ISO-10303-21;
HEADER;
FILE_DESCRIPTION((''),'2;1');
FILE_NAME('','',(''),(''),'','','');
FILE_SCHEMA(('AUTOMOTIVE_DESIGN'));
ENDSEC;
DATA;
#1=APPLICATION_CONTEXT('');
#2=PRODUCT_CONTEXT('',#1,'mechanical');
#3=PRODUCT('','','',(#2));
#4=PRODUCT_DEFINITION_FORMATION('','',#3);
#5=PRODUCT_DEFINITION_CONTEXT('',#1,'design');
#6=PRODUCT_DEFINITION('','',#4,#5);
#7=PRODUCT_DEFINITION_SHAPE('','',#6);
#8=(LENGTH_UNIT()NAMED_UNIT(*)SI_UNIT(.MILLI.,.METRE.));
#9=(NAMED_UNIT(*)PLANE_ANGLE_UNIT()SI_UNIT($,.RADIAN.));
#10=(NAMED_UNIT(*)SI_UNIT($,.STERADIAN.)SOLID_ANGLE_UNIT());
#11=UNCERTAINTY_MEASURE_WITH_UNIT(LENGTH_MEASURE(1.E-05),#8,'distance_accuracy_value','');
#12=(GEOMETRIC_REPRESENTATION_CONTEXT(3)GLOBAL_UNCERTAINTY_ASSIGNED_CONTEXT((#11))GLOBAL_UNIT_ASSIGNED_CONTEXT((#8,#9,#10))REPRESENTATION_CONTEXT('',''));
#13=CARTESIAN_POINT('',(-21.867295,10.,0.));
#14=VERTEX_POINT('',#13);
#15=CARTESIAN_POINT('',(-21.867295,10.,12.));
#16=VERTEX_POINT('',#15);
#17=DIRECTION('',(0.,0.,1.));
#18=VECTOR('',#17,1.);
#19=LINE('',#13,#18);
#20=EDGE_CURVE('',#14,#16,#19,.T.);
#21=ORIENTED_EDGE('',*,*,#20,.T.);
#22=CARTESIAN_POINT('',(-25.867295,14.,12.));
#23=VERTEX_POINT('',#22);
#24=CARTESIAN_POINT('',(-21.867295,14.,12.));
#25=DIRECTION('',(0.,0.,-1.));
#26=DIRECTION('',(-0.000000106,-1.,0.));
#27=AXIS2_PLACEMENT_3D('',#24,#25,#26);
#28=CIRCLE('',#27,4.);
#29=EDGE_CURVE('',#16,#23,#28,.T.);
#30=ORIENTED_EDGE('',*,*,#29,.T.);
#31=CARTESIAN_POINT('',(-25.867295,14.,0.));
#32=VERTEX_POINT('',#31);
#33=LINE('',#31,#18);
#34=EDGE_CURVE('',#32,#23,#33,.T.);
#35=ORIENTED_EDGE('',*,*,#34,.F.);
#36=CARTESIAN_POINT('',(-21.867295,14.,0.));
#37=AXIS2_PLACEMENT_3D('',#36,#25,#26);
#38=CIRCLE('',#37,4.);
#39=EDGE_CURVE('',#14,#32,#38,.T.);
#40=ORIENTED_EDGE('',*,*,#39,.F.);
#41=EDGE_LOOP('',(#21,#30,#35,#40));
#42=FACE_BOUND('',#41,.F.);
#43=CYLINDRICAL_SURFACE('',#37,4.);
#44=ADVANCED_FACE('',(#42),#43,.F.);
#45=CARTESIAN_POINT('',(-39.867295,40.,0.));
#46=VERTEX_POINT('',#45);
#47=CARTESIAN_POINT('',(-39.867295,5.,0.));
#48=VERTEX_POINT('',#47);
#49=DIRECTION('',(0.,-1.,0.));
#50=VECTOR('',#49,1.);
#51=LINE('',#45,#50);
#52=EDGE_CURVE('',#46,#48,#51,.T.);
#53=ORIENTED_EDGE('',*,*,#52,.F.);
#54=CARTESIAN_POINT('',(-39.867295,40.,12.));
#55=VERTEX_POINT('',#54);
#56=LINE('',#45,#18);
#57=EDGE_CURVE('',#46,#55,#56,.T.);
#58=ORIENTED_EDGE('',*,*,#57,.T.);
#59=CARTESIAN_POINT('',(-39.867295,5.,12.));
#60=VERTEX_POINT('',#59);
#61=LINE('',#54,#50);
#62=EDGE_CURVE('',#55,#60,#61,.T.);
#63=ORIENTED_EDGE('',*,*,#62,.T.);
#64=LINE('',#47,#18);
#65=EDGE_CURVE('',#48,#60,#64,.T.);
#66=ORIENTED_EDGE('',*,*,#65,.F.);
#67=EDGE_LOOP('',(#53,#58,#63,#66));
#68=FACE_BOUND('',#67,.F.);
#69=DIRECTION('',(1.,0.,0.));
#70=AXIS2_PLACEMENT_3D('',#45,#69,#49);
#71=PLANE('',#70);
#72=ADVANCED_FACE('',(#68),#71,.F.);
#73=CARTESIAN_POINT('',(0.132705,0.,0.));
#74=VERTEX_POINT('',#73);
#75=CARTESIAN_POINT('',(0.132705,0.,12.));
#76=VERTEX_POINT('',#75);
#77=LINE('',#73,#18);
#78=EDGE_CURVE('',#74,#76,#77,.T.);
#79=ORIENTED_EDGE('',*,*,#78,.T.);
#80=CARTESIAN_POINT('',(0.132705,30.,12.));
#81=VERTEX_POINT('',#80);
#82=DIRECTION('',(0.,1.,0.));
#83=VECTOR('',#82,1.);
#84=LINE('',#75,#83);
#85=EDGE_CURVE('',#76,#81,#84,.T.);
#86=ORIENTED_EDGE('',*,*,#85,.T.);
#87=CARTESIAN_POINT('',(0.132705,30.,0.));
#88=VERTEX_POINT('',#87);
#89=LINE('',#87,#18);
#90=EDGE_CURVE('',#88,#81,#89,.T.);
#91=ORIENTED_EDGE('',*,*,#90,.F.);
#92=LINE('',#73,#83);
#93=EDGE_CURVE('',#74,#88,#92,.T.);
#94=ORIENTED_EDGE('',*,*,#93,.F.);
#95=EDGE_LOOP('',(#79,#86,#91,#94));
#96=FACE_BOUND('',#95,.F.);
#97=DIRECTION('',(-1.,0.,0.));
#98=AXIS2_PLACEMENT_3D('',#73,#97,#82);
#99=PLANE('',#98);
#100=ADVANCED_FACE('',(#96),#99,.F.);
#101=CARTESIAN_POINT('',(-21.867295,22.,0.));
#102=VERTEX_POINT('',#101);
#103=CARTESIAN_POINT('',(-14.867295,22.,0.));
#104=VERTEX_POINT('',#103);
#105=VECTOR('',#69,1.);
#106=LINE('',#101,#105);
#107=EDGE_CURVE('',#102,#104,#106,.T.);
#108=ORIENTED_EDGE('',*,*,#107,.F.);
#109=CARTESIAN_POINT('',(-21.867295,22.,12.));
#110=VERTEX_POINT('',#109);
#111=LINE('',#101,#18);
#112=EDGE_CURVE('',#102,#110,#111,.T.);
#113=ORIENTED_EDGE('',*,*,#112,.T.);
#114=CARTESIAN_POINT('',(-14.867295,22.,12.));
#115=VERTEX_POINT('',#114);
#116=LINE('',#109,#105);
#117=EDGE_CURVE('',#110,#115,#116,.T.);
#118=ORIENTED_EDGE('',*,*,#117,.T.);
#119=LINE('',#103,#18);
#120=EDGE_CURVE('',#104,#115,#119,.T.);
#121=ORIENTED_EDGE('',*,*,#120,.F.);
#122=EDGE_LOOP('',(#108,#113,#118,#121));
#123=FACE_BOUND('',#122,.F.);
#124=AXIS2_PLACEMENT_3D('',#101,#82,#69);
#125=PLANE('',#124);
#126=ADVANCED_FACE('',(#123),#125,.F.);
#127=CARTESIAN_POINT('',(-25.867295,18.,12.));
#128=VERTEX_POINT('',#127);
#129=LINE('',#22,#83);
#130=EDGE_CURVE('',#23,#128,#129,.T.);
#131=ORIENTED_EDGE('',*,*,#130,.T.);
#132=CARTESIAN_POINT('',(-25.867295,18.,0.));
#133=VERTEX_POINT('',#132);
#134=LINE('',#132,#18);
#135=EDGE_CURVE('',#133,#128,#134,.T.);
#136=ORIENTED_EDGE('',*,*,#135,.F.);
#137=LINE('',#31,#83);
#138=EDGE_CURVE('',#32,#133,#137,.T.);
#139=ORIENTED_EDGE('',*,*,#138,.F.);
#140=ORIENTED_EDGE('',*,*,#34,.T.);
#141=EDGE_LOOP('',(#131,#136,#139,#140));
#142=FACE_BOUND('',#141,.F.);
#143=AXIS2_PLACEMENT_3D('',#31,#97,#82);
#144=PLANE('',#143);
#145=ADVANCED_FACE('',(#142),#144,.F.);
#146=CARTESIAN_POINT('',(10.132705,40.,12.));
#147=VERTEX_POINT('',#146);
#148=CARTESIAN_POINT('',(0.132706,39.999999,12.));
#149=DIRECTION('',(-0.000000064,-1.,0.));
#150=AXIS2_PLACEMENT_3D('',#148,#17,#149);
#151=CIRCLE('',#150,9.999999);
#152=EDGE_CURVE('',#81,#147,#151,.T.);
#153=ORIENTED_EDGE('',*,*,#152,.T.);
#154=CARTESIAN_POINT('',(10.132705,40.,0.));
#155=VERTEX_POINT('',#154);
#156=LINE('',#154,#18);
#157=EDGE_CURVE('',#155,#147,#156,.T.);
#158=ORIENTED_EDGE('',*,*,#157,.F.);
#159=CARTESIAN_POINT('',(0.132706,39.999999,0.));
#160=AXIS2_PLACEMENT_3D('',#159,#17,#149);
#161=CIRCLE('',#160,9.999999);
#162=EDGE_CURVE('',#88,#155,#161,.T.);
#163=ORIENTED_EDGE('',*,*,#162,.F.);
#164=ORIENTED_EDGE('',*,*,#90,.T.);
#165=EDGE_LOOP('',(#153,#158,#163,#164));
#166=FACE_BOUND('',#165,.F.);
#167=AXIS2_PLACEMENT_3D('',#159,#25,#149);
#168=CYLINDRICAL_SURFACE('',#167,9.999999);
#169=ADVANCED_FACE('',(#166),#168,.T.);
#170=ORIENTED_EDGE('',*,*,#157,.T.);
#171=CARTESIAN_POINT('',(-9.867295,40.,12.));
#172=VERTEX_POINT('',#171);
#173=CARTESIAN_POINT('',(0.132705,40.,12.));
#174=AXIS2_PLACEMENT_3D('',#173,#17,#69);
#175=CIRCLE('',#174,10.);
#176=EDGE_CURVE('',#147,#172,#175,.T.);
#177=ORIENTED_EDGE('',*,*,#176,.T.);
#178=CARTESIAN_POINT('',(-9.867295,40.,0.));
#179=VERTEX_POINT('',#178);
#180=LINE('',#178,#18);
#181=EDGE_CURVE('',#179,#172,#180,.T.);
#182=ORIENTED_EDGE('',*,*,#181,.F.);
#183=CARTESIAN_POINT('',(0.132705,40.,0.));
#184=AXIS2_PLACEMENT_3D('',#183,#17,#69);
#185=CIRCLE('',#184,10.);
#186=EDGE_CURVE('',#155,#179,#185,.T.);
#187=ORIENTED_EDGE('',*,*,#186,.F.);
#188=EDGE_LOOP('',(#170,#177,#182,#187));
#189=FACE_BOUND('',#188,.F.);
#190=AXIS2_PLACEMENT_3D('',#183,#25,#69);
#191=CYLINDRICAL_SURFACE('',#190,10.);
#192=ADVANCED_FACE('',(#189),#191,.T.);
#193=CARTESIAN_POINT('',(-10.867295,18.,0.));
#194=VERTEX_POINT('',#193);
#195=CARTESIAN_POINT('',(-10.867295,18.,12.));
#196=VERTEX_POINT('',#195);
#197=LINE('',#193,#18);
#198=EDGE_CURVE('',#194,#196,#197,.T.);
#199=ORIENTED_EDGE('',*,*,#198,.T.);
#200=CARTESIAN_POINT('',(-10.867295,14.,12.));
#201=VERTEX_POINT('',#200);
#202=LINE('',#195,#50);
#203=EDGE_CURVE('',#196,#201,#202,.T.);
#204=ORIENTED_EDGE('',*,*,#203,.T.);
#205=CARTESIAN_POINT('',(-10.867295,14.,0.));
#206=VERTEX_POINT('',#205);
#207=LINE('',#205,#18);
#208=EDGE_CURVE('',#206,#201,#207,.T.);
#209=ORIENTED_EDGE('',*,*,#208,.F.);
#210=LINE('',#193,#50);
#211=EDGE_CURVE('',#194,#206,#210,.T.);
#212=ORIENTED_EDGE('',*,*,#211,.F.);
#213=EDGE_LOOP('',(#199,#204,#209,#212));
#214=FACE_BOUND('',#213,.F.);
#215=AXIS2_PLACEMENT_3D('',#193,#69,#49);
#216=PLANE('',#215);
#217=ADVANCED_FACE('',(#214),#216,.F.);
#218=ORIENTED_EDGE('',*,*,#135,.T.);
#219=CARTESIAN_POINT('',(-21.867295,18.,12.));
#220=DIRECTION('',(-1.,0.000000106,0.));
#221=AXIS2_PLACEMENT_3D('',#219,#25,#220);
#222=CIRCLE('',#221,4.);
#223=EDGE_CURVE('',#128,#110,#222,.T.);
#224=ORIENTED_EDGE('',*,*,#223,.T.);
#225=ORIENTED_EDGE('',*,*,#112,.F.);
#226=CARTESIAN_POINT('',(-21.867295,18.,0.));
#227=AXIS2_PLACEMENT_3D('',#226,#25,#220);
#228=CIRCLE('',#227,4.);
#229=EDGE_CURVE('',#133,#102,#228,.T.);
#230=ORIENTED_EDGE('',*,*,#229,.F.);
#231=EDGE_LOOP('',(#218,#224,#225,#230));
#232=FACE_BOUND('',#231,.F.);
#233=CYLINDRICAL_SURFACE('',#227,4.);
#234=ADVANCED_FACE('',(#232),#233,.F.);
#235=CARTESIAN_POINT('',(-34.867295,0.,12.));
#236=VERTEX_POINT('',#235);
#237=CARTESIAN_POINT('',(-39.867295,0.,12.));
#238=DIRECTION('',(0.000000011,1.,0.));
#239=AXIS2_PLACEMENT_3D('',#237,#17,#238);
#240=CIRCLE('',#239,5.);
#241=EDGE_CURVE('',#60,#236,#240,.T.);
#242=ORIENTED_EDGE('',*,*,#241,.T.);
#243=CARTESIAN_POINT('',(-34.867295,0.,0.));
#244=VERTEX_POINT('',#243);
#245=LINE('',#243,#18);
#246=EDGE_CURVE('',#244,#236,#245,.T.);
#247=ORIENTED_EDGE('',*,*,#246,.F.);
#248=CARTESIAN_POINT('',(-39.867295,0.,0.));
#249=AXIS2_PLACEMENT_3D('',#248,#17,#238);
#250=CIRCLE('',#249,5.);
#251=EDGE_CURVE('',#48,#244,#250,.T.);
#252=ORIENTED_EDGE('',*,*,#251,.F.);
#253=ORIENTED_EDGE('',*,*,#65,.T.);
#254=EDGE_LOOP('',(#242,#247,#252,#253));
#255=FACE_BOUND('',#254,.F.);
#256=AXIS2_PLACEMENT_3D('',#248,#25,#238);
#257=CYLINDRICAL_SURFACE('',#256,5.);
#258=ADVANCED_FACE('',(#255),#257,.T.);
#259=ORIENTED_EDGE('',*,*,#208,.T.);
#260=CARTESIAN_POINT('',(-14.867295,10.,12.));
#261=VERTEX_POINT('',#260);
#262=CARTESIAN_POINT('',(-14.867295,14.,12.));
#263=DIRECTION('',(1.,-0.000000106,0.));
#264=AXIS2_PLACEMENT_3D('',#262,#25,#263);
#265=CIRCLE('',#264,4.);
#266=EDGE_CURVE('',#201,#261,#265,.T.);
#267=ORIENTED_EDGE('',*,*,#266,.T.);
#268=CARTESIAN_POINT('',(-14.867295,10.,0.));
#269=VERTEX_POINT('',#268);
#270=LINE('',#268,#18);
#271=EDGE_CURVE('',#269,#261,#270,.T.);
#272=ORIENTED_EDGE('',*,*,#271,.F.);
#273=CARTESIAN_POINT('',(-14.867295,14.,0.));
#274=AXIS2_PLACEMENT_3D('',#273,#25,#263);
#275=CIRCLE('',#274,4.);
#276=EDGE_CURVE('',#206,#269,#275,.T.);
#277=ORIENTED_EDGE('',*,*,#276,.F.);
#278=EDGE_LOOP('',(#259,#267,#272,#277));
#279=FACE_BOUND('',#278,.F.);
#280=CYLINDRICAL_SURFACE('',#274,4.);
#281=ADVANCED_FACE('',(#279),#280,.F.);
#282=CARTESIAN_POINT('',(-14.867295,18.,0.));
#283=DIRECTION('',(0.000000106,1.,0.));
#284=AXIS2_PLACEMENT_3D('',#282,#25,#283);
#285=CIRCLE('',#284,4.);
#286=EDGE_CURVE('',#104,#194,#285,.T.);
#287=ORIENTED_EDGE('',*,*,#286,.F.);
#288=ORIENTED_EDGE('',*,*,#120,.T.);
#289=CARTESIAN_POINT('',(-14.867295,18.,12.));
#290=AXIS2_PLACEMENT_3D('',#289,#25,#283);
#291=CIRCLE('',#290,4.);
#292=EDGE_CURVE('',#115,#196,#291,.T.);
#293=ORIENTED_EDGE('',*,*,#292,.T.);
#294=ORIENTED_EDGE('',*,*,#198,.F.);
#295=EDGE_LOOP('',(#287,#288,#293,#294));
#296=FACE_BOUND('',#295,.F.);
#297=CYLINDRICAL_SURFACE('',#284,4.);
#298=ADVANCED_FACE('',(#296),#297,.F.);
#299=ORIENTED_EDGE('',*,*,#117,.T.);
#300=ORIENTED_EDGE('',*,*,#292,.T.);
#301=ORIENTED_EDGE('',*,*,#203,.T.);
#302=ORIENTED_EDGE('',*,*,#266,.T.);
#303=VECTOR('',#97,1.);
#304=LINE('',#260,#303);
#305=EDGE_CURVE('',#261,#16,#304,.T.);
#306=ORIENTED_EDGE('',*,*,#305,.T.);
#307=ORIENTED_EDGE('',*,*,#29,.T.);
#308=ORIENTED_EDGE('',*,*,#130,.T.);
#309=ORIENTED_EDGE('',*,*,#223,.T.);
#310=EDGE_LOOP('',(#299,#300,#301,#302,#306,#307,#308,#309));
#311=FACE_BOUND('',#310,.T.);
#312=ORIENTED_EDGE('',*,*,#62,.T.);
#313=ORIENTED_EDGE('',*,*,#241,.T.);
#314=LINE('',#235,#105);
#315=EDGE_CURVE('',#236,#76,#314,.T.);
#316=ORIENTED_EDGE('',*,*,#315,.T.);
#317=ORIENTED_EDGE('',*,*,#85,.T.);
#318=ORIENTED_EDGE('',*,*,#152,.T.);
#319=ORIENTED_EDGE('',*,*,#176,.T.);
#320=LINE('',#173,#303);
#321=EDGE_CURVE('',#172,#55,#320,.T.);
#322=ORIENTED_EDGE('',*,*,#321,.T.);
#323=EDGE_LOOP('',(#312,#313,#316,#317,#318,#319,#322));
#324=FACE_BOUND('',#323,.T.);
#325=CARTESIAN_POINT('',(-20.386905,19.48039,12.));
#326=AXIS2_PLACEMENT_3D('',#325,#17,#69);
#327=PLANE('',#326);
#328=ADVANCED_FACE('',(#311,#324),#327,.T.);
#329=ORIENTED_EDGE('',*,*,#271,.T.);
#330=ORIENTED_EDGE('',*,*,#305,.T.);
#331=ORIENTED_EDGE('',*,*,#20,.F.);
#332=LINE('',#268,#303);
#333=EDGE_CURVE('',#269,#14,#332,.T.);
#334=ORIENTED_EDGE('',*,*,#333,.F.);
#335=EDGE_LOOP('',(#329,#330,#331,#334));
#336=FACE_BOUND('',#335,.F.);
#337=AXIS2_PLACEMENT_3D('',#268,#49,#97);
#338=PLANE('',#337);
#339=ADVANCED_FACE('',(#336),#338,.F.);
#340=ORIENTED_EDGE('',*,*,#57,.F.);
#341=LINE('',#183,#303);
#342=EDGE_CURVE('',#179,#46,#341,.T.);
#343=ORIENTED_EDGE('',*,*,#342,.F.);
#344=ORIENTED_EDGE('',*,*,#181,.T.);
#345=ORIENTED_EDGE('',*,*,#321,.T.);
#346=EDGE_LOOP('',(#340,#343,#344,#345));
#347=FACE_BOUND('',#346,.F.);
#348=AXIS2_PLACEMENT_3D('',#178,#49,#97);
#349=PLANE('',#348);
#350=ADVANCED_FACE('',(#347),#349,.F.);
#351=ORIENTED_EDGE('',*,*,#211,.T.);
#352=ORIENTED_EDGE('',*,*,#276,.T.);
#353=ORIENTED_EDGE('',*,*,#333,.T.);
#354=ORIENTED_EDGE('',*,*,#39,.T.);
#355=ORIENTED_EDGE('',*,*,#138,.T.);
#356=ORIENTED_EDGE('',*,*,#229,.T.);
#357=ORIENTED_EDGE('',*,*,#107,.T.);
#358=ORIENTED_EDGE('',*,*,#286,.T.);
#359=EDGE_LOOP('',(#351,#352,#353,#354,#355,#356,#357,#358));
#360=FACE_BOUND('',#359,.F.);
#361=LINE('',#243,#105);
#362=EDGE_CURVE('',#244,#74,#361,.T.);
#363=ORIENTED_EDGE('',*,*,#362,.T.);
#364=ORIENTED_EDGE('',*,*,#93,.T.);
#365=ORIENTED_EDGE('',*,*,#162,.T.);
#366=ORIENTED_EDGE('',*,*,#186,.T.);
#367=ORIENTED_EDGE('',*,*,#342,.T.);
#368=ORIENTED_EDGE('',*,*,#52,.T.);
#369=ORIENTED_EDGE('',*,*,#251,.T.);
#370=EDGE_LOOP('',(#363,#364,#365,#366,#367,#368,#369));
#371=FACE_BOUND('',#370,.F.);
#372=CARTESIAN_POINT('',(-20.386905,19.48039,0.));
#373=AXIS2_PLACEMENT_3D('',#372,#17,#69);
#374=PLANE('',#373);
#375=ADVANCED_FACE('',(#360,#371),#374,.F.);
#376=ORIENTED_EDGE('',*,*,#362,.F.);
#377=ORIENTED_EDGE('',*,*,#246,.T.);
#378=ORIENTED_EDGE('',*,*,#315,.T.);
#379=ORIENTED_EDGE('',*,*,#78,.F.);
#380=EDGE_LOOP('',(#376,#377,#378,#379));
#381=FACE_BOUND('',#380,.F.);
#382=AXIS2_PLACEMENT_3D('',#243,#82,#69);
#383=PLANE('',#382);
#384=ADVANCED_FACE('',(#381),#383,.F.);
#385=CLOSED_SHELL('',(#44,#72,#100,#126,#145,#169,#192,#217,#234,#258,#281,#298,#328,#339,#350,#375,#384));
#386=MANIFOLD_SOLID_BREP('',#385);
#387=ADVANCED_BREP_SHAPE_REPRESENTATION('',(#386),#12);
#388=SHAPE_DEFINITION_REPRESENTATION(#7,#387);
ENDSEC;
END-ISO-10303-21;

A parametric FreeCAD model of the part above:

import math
import FreeCAD as App
import Part
import Sketcher
from FreeCAD import Vector

doc = App.newDocument("Part")
body = doc.addObject("PartDesign::Body", "Body")

# Sketch on XY plane
sketch1 = body.newObject("Sketcher::SketchObject", "Sketch")
sketch1.AttachmentSupport = (doc.getObject("XY_Plane"), [""])
sketch1.MapMode = "FlatFace"
sketch1.addGeometry([
    Part.LineSegment(Vector(-39.9, 40, 0), Vector(-39.9, 5, 0)),  # 0
    Part.ArcOfCircle(Part.Circle(Vector(-39.9, 0, 0), Vector(0, 0, 1), 5), math.radians(90), math.radians(360)),  # 1
    Part.LineSegment(Vector(-34.9, 0, 0), Vector(0.1, 0, 0)),  # 2
    Part.LineSegment(Vector(0.1, 0, 0), Vector(0.1, 30, 0)),  # 3
    Part.ArcOfCircle(Part.Circle(Vector(0.1, 40, 0), Vector(0, 0, 1), 10), math.radians(-90), math.radians(0)),  # 4
    Part.ArcOfCircle(Part.Circle(Vector(0.1, 40, 0), Vector(0, 0, 1), 10), math.radians(0), math.radians(180)),  # 5
    Part.LineSegment(Vector(-9.9, 40, 0), Vector(-39.9, 40, 0)),  # 6
    Part.LineSegment(Vector(-25.9, 14, 0), Vector(-25.9, 18, 0)),  # 7
    Part.ArcOfCircle(Part.Circle(Vector(-21.9, 18, 0), Vector(0, 0, 1), 4), math.radians(90), math.radians(180)),  # 8
    Part.LineSegment(Vector(-21.9, 22, 0), Vector(-14.9, 22, 0)),  # 9
    Part.ArcOfCircle(Part.Circle(Vector(-14.9, 18, 0), Vector(0, 0, 1), 4), math.radians(0), math.radians(90)),  # 10
    Part.LineSegment(Vector(-10.9, 18, 0), Vector(-10.9, 14, 0)),  # 11
    Part.ArcOfCircle(Part.Circle(Vector(-14.9, 14, 0), Vector(0, 0, 1), 4), math.radians(-90), math.radians(0)),  # 12
    Part.LineSegment(Vector(-14.9, 10, 0), Vector(-21.9, 10, 0)),  # 13
    Part.ArcOfCircle(Part.Circle(Vector(-21.9, 14, 0), Vector(0, 0, 1), 4), math.radians(-180), math.radians(-90)),  # 14
], False)
sketch1.addConstraint([
    Sketcher.Constraint("Coincident", 0, 2, 1, 1),
    Sketcher.Constraint("Coincident", 1, 2, 2, 1),
    Sketcher.Constraint("Coincident", 2, 2, 3, 1),
    Sketcher.Constraint("Coincident", 3, 2, 4, 1),
    Sketcher.Constraint("Tangent", 4, 2, 5, 1),
    Sketcher.Constraint("Coincident", 5, 2, 6, 1),
    Sketcher.Constraint("Coincident", 6, 2, 0, 1),
    Sketcher.Constraint("Tangent", 7, 2, 8, 2),
    Sketcher.Constraint("Tangent", 8, 1, 9, 1),
    Sketcher.Constraint("Tangent", 9, 2, 10, 2),
    Sketcher.Constraint("Tangent", 10, 1, 11, 1),
    Sketcher.Constraint("Tangent", 11, 2, 12, 2),
    Sketcher.Constraint("Tangent", 12, 1, 13, 1),
    Sketcher.Constraint("Tangent", 13, 2, 14, 2),
    Sketcher.Constraint("Tangent", 14, 1, 7, 1),
    Sketcher.Constraint("Vertical", 0),
    Sketcher.Constraint("Horizontal", 2),
    Sketcher.Constraint("Vertical", 3),
    Sketcher.Constraint("Horizontal", 6),
    Sketcher.Constraint("Vertical", 7),
    Sketcher.Constraint("Horizontal", 9),
    Sketcher.Constraint("Vertical", 11),
    Sketcher.Constraint("Horizontal", 13),
    Sketcher.Constraint("Equal", 4, 5),
    Sketcher.Constraint("Equal", 8, 10),
    Sketcher.Constraint("Equal", 10, 12),
    Sketcher.Constraint("Equal", 12, 14),
    Sketcher.Constraint("PointOnObject", 1, 3, -1),
    Sketcher.Constraint("PointOnObject", 1, 2, -1),
    Sketcher.Constraint("Horizontal", 5, 3, 4, 2),
    Sketcher.Constraint("Horizontal", 4, 2, 5, 2),
    Sketcher.Constraint("Vertical", 1, 3, 0, 2),
    Sketcher.Constraint("Vertical", 5, 3, 2, 2),
    Sketcher.Constraint("Equal", 2, 0),
    Sketcher.Constraint("Radius", 1, 5.0),
    Sketcher.Constraint("Radius", 4, 9.999999),
    Sketcher.Constraint("Radius", 8, 4.0),
    Sketcher.Constraint("DistanceX", 2, 1, 2, 2, 35.0),
    Sketcher.Constraint("DistanceX", 9, 1, 9, 2, 7.0),
    Sketcher.Constraint("DistanceY", 7, 1, 7, 2, 4.0),
    Sketcher.Constraint("DistanceY", -1, 1, 8, 3, 18.0),
    Sketcher.Constraint("DistanceX", 1, 3, 8, 3, 18.0),
    Sketcher.Constraint("DistanceX", 1, 3, -1, 1, 39.867295),
])
pad1 = body.newObject("PartDesign::Pad", "Pad")
pad1.Profile = sketch1
pad1.Length = 12

doc.recompute()
